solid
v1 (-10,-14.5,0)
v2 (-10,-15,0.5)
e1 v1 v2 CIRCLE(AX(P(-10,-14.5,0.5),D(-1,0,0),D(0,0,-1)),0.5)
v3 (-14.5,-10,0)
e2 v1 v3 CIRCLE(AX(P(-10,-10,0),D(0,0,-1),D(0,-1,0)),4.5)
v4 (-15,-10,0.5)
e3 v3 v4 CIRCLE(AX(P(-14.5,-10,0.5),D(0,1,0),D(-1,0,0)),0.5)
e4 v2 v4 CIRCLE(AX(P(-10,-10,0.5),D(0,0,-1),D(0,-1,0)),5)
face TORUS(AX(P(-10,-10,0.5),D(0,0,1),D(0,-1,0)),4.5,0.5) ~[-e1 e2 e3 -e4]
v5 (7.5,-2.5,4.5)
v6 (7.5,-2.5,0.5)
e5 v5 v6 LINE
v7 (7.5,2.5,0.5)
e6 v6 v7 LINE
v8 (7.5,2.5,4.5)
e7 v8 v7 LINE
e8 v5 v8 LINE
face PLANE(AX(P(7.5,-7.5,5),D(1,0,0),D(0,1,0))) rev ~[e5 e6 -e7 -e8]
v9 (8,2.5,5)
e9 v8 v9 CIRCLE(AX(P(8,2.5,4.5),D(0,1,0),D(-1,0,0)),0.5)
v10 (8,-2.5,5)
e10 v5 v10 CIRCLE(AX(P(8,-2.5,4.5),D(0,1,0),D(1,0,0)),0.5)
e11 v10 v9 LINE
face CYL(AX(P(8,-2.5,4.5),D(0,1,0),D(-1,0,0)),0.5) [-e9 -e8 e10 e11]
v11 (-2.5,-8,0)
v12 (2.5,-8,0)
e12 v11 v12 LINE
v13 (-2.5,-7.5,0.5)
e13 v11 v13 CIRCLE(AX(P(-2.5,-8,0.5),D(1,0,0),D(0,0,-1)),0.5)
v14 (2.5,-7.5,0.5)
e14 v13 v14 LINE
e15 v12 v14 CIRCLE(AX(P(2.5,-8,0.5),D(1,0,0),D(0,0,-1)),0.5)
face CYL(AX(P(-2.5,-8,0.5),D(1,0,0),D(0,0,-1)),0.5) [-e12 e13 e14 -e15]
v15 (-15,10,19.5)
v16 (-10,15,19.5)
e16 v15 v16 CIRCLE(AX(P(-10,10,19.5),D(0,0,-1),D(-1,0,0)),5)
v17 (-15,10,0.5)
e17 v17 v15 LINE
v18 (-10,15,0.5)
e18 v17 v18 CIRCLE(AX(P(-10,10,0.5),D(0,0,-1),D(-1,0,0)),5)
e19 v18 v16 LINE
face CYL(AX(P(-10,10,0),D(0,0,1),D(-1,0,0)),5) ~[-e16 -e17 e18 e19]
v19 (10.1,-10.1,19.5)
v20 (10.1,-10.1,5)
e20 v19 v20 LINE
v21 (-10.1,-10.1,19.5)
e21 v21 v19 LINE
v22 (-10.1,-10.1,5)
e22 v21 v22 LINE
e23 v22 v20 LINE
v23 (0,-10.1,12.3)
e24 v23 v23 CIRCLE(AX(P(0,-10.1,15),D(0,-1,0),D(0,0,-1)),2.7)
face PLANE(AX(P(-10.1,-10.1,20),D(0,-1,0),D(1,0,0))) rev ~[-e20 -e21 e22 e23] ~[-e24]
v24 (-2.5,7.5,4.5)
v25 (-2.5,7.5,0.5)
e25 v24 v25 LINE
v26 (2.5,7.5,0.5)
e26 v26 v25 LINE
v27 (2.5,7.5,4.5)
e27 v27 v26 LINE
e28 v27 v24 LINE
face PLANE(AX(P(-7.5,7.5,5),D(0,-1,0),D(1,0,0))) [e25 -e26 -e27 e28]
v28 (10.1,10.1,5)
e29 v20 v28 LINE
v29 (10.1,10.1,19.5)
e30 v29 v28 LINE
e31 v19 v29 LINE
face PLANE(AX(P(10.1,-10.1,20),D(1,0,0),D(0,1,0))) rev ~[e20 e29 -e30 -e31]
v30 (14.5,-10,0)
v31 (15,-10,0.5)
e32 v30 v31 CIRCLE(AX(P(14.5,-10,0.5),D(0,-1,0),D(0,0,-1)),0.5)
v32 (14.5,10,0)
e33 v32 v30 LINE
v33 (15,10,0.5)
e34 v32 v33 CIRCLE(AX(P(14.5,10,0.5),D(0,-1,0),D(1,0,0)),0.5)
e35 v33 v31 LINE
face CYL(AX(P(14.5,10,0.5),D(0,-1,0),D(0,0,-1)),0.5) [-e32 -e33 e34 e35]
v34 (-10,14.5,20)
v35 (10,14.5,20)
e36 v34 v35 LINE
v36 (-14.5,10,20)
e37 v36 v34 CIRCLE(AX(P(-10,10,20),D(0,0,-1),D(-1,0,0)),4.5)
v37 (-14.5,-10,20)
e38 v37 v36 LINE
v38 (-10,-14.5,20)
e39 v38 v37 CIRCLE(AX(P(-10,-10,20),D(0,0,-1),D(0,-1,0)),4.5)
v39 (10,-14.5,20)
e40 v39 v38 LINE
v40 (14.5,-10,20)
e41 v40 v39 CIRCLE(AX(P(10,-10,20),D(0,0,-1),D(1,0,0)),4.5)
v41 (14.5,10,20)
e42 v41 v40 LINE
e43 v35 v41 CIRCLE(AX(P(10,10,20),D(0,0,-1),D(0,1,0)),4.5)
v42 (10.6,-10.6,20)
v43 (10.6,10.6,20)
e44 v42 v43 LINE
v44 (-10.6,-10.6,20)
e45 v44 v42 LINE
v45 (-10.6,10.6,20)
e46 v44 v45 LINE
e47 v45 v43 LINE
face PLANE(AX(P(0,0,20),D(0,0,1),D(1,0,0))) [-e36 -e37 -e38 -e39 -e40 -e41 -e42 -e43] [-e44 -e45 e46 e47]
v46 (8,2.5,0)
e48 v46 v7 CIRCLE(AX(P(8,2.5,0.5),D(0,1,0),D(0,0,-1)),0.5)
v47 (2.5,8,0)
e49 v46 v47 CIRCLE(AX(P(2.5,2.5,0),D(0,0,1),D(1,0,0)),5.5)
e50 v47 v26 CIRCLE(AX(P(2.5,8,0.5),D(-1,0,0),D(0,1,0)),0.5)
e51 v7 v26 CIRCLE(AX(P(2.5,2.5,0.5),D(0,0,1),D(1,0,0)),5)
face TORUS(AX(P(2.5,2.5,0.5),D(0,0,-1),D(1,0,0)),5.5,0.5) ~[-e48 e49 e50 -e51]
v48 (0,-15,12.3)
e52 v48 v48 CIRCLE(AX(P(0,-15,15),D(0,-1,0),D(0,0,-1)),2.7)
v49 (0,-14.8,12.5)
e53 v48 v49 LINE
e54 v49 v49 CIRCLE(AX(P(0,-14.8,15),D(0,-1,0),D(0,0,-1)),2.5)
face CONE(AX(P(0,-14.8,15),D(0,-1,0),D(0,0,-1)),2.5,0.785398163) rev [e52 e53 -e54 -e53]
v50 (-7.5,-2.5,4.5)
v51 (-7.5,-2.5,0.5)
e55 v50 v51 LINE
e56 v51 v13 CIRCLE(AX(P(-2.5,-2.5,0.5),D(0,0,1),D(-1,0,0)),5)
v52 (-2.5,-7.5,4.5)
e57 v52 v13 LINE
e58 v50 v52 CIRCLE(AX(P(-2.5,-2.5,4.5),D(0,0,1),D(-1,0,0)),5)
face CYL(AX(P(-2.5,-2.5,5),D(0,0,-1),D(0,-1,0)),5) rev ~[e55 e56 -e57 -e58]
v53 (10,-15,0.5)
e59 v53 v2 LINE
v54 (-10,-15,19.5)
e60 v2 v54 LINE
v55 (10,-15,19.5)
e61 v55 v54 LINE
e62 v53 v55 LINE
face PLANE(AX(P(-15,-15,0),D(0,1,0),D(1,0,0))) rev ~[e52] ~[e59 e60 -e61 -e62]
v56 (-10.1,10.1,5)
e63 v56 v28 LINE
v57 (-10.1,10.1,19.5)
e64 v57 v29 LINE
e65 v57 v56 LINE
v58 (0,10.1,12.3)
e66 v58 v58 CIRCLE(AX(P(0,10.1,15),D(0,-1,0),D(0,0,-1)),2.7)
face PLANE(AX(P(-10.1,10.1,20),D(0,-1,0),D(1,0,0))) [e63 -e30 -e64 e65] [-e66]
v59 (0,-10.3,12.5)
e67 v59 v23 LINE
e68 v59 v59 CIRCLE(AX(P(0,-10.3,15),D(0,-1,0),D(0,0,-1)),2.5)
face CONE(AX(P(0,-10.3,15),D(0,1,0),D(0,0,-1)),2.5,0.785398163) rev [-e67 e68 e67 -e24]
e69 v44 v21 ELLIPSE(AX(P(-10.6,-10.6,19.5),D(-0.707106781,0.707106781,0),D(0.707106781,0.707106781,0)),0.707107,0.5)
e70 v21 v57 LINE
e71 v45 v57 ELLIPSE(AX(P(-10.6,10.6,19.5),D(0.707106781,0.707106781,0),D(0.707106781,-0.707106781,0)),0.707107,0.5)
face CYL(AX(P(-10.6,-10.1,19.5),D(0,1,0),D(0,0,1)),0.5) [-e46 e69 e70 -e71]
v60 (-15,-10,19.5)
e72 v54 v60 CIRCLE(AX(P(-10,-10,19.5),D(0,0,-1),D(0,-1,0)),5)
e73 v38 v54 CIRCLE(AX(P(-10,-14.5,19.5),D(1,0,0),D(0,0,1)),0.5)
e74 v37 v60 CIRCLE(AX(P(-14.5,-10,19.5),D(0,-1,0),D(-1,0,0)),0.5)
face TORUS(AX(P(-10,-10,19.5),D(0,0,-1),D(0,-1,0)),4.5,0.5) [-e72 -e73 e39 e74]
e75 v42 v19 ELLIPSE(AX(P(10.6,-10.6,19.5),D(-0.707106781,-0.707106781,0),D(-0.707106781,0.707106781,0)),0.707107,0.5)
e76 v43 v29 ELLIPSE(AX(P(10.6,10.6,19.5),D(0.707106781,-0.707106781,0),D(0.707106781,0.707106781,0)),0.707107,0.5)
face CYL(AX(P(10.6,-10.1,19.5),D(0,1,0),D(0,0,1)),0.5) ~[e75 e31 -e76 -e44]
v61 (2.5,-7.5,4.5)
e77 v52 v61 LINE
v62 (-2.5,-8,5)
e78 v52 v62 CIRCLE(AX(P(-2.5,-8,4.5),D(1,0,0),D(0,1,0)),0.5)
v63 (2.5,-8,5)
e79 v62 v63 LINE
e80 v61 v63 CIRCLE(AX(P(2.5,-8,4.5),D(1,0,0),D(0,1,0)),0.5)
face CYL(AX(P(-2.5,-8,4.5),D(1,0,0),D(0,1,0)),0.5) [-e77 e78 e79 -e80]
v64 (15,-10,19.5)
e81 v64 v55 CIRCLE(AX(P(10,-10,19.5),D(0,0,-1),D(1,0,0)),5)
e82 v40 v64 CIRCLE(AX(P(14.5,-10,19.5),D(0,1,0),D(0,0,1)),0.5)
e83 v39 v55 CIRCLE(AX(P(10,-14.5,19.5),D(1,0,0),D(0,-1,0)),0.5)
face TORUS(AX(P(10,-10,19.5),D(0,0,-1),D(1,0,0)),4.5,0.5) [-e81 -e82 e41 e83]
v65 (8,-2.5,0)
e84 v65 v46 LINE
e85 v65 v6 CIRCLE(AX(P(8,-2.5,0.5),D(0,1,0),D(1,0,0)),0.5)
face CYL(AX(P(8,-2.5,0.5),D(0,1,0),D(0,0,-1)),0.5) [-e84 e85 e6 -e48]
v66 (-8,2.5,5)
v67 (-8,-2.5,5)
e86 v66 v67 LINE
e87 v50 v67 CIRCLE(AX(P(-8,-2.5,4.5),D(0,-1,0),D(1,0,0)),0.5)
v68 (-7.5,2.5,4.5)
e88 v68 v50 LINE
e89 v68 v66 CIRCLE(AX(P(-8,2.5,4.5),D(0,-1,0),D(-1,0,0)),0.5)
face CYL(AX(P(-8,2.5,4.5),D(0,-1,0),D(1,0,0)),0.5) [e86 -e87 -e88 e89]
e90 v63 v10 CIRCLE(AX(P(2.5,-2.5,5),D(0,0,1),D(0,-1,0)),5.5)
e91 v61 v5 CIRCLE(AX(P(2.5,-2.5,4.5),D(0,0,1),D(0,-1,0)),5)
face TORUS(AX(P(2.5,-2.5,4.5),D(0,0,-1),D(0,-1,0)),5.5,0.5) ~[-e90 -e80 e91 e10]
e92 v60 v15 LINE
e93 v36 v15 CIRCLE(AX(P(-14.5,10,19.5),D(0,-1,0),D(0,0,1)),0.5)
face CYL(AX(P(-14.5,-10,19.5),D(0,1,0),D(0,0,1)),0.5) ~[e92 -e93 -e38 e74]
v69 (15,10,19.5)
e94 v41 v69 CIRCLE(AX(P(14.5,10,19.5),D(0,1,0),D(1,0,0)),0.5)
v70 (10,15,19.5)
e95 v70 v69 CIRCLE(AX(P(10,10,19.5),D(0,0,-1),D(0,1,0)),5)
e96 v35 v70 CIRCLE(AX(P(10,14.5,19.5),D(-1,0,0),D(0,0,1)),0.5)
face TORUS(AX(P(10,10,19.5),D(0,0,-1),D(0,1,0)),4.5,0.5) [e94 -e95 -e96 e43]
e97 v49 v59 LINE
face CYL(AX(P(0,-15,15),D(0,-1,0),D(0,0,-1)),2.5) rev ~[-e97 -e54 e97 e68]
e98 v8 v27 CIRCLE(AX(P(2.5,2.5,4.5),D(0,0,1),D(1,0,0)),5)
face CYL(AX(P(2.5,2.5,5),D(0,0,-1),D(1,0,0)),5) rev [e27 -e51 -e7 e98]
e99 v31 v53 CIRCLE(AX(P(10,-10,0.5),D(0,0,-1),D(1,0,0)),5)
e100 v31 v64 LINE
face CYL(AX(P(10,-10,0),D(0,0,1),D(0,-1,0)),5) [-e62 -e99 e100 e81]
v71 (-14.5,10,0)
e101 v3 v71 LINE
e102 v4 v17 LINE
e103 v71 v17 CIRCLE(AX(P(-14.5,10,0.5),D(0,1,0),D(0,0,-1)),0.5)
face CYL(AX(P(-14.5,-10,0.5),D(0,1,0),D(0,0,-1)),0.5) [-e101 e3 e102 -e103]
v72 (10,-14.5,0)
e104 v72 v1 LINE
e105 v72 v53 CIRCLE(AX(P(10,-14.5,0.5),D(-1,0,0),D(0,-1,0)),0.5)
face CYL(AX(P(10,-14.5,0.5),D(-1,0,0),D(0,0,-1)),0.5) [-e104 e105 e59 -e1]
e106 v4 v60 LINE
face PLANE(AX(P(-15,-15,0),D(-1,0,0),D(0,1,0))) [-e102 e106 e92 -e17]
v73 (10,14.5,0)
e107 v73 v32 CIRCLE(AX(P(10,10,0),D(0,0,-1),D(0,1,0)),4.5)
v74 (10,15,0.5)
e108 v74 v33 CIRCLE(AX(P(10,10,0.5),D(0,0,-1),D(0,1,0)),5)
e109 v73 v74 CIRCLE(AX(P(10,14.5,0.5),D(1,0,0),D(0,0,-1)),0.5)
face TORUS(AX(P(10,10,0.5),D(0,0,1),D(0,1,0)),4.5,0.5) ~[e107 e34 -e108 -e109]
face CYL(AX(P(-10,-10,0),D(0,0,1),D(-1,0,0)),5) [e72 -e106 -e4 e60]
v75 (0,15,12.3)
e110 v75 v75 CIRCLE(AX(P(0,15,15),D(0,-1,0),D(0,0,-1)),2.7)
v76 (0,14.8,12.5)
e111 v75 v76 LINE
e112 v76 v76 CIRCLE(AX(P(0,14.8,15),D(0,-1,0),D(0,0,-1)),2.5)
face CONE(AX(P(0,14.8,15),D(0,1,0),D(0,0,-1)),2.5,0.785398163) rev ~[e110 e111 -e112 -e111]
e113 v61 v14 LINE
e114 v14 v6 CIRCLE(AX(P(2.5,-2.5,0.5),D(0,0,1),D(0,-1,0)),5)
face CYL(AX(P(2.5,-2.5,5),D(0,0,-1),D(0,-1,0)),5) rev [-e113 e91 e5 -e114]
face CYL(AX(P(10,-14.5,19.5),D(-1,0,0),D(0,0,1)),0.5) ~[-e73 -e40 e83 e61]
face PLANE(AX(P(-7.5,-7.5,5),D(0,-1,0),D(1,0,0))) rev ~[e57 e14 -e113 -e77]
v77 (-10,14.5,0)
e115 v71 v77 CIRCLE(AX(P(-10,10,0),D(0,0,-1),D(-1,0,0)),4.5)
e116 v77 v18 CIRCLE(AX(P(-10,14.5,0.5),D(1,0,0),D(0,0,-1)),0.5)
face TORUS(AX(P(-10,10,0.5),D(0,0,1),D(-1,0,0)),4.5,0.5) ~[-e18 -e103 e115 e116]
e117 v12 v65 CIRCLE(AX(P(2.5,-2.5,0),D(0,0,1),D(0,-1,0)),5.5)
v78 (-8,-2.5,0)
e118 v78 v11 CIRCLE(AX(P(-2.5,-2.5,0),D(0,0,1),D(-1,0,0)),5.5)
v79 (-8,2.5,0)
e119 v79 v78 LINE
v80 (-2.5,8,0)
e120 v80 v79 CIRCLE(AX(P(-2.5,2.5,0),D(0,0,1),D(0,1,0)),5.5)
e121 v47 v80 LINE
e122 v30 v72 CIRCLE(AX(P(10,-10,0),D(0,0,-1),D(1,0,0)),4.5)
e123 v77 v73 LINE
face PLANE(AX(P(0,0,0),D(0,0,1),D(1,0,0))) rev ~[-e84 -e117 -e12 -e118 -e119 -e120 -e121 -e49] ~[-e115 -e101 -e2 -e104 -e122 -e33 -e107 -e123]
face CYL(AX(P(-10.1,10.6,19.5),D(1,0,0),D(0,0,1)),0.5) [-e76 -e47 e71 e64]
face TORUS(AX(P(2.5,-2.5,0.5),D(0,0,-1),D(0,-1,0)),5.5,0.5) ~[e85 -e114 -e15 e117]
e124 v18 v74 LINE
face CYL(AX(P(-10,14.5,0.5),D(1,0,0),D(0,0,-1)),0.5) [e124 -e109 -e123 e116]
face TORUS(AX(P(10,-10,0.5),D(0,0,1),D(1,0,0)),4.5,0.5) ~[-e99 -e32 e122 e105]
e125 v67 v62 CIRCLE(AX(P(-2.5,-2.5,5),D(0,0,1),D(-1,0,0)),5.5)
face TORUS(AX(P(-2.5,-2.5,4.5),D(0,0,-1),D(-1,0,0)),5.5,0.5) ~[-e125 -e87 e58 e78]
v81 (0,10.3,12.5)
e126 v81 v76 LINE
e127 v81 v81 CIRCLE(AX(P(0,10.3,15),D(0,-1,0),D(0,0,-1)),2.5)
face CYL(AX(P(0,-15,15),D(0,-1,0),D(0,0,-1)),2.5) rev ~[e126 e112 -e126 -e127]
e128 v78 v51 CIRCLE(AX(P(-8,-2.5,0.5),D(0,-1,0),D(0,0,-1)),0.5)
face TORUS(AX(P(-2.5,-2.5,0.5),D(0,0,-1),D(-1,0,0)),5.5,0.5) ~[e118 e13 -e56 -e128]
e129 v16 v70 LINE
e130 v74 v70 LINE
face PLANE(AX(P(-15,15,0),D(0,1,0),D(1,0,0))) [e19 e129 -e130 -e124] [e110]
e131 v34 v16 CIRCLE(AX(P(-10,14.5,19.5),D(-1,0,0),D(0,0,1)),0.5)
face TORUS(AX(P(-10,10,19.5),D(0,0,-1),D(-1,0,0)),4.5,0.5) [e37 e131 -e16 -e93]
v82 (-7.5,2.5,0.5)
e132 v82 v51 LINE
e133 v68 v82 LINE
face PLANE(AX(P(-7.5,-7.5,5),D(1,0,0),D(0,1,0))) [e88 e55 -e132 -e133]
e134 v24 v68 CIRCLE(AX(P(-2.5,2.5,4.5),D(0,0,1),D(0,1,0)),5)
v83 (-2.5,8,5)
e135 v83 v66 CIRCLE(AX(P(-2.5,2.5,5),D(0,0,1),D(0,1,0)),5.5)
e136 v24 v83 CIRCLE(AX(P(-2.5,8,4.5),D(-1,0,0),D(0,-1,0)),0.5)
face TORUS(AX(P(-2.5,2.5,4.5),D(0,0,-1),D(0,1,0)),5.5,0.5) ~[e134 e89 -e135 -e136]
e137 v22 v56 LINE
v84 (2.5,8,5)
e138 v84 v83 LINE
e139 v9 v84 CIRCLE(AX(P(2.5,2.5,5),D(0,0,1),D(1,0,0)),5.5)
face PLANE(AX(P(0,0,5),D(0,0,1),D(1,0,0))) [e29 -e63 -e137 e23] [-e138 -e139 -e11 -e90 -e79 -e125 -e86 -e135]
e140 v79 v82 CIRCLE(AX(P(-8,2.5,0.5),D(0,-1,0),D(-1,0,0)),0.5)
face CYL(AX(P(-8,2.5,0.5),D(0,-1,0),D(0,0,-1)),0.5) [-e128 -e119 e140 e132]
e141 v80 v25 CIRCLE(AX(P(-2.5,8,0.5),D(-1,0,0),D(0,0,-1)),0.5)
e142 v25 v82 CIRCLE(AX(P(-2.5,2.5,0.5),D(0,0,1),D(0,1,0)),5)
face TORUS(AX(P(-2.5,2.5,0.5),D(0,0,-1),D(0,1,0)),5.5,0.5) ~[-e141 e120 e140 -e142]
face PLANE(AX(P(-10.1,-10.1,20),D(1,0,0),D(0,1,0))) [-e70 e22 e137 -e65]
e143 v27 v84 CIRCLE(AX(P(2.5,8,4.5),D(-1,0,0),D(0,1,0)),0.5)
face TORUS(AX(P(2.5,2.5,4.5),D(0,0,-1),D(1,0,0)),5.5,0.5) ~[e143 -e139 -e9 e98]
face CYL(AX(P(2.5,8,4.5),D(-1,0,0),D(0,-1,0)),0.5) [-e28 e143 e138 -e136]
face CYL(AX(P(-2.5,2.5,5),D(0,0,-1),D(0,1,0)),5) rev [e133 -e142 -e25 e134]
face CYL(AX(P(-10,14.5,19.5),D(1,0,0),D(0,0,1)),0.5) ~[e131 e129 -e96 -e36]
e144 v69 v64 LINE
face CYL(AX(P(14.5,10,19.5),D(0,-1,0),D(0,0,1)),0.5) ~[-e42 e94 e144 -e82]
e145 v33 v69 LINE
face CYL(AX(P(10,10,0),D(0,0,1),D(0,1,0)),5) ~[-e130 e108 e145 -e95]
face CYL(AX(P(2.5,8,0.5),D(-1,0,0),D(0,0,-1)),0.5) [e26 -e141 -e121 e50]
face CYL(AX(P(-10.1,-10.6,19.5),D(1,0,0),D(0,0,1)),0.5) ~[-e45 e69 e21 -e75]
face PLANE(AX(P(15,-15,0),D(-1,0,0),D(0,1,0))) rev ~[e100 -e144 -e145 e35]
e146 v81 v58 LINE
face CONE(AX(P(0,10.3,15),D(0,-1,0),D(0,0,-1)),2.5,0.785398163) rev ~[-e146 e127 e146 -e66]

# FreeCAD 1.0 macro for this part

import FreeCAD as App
import Part
import Sketcher


def edges_at(feature, points):
    """Names of the edges that pass closest to the given points."""
    edges = feature.Shape.Edges
    near = lambda p: min(range(len(edges)), key=lambda i: edges[i].distToShape(Part.Vertex(*p))[0])
    return sorted({f"Edge{near(p) + 1}" for p in points})


def add_polygon(sketch, points):
    """Adds a closed chain of lines whose ends are joined by coincident constraints."""
    first, n = sketch.GeometryCount, len(points)
    for a, b in zip(points, points[1:] + points[:1]):
        sketch.addGeometry(Part.LineSegment(App.Vector(*a, 0), App.Vector(*b, 0)), False)
    for i in range(n):
        sketch.addConstraint(Sketcher.Constraint("Coincident", first + i, 2, first + (i + 1) % n, 1))

doc = App.newDocument("Part")
body = doc.addObject("PartDesign::Body", "Body")

# Sketch on XY plane
sketch1 = doc.addObject("Sketcher::SketchObject", "Sketch")
body.addObject(sketch1)
sketch1.AttachmentSupport = (doc.XY_Plane, [""])
sketch1.MapMode = "FlatFace"
add_polygon(sketch1, [(-15, 15), (-15, -15), (15, -15), (15, 15)])  # lines 0-3
sketch1.addConstraint([
    Sketcher.Constraint("Vertical", 0),
    Sketcher.Constraint("Horizontal", 1),
    Sketcher.Constraint("Vertical", 2),
    Sketcher.Constraint("Horizontal", 3),
    Sketcher.Constraint("Symmetric", 0, 2, 2, 2, -1, 1),
    Sketcher.Constraint("Equal", 3, 0),
    Sketcher.Constraint("DistanceX", 1, 1, 1, 2, 30.0),
])
pad1 = doc.addObject("PartDesign::Pad", "Pad")
body.addObject(pad1)
pad1.Profile = sketch1
pad1.Length = 20

# Sketch on XY plane
sketch2 = doc.addObject("Sketcher::SketchObject", "Sketch001")
body.addObject(sketch2)
sketch2.AttachmentSupport = (doc.XY_Plane, [""])
sketch2.MapMode = "FlatFace"
sketch2.AttachmentOffset = App.Placement(App.Vector(0, 0, 20), App.Rotation())
add_polygon(sketch2, [(-10.1, 10.1), (-10.1, -10.1), (10.1, -10.1), (10.1, 10.1)])  # lines 0-3
sketch2.addConstraint([
    Sketcher.Constraint("Vertical", 0),
    Sketcher.Constraint("Horizontal", 1),
    Sketcher.Constraint("Vertical", 2),
    Sketcher.Constraint("Horizontal", 3),
    Sketcher.Constraint("Symmetric", 0, 2, 2, 2, -1, 1),
    Sketcher.Constraint("Equal", 3, 0),
    Sketcher.Constraint("DistanceX", 1, 1, 1, 2, 20.2),
])
pocket1 = doc.addObject("PartDesign::Pocket", "Pocket")
body.addObject(pocket1)
pocket1.Profile = sketch2
pocket1.Length = 15

# Sketch on XZ plane
sketch3 = doc.addObject("Sketcher::SketchObject", "Sketch002")
body.addObject(sketch3)
sketch3.AttachmentSupport = (doc.XZ_Plane, [""])
sketch3.MapMode = "FlatFace"
sketch3.AttachmentOffset = App.Placement(App.Vector(0, 0, 15), App.Rotation())
sketch3.addGeometry(Part.Circle(App.Vector(0, 15, 0), App.Vector(0, 0, 1), 2.5), False)
sketch3.addConstraint([
    Sketcher.Constraint("PointOnObject", 0, 3, -2),
    Sketcher.Constraint("Diameter", 0, 5.0),
    Sketcher.Constraint("DistanceY", -1, 1, 0, 3, 15.0),
])
pocket2 = doc.addObject("PartDesign::Pocket", "Pocket001")
body.addObject(pocket2)
pocket2.Profile = sketch3
pocket2.Type = "ThroughAll"

# Sketch on XY plane
sketch4 = doc.addObject("Sketcher::SketchObject", "Sketch003")
body.addObject(sketch4)
sketch4.AttachmentSupport = (doc.XY_Plane, [""])
sketch4.MapMode = "FlatFace"
sketch4.AttachmentOffset = App.Placement(App.Vector(0, 0, 5), App.Rotation())
add_polygon(sketch4, [(-7.5, 7.5), (-7.5, -7.5), (7.5, -7.5), (7.5, 7.5)])  # lines 0-3
sketch4.addConstraint([
    Sketcher.Constraint("Vertical", 0),
    Sketcher.Constraint("Horizontal", 1),
    Sketcher.Constraint("Vertical", 2),
    Sketcher.Constraint("Horizontal", 3),
    Sketcher.Constraint("Symmetric", 0, 2, 2, 2, -1, 1),
    Sketcher.Constraint("Equal", 3, 0),
    Sketcher.Constraint("DistanceX", 1, 1, 1, 2, 15.0),
])
pocket3 = doc.addObject("PartDesign::Pocket", "Pocket002")
body.addObject(pocket3)
pocket3.Profile = sketch4
pocket3.Type = "ThroughAll"
doc.recompute()

fillet = doc.addObject("PartDesign::Fillet", "Fillet")
body.addObject(fillet)
fillet.Base = (pocket3, edges_at(pocket3, [
    (7.5, 7.5, 2.5),
    (7.5, -7.5, 2.5),
    (-7.5, -7.5, 2.5),
    (-7.5, 7.5, 2.5),
    (15, -15, 10),
    (-15, -15, 10),
    (-15, 15, 10),
    (15, 15, 10),
]))
fillet.Radius = 5
doc.recompute()

fillet2 = doc.addObject("PartDesign::Fillet", "Fillet001")
body.addObject(fillet2)
fillet2.Base = (fillet, edges_at(fillet, [
    (10.1, 0, 20),
    (0, 10.1, 20),
    (-10.1, 0, 20),
    (0, -10.1, 20),
    (0, -7.5, 5),
    (0, -7.5, 0),
    (-7.5, 0, 5),
    (-7.5, 0, 0),
    (7.5, 0, 5),
    (7.5, 0, 0),
    (0, 7.5, 5),
    (0, 7.5, 0),
    (0, 15, 0),
    (0, 15, 20),
    (15, 0, 0),
    (0, -15, 0),
    (-15, 0, 0),
    (13.536, -13.536, 0),
    (-13.536, -13.536, 0),
    (-13.536, 13.536, 0),
    (13.536, 13.536, 0),
    (15, 0, 20),
    (-15, 0, 20),
    (0, -15, 20),
    (13.536, -13.536, 20),
    (-13.536, -13.536, 20),
    (-13.536, 13.536, 20),
    (13.536, 13.536, 20),
    (-6.036, -6.036, 5),
    (-6.036, -6.036, 0),
    (6.036, -6.036, 5),
    (6.036, -6.036, 0),
    (6.036, 6.036, 5),
    (6.036, 6.036, 0),
    (-6.036, 6.036, 5),
    (-6.036, 6.036, 0),
]))
fillet2.Radius = 0.5
doc.recompute()

chamfer = doc.addObject("PartDesign::Chamfer", "Chamfer")
body.addObject(chamfer)
chamfer.Base = (fillet2, edges_at(fillet2, [
    (0, 15, 17.5),
    (0, 10.1, 17.5),
    (0, -10.1, 17.5),
    (0, -15, 17.5),
]))
chamfer.Size = 0.2

doc.recompute()
